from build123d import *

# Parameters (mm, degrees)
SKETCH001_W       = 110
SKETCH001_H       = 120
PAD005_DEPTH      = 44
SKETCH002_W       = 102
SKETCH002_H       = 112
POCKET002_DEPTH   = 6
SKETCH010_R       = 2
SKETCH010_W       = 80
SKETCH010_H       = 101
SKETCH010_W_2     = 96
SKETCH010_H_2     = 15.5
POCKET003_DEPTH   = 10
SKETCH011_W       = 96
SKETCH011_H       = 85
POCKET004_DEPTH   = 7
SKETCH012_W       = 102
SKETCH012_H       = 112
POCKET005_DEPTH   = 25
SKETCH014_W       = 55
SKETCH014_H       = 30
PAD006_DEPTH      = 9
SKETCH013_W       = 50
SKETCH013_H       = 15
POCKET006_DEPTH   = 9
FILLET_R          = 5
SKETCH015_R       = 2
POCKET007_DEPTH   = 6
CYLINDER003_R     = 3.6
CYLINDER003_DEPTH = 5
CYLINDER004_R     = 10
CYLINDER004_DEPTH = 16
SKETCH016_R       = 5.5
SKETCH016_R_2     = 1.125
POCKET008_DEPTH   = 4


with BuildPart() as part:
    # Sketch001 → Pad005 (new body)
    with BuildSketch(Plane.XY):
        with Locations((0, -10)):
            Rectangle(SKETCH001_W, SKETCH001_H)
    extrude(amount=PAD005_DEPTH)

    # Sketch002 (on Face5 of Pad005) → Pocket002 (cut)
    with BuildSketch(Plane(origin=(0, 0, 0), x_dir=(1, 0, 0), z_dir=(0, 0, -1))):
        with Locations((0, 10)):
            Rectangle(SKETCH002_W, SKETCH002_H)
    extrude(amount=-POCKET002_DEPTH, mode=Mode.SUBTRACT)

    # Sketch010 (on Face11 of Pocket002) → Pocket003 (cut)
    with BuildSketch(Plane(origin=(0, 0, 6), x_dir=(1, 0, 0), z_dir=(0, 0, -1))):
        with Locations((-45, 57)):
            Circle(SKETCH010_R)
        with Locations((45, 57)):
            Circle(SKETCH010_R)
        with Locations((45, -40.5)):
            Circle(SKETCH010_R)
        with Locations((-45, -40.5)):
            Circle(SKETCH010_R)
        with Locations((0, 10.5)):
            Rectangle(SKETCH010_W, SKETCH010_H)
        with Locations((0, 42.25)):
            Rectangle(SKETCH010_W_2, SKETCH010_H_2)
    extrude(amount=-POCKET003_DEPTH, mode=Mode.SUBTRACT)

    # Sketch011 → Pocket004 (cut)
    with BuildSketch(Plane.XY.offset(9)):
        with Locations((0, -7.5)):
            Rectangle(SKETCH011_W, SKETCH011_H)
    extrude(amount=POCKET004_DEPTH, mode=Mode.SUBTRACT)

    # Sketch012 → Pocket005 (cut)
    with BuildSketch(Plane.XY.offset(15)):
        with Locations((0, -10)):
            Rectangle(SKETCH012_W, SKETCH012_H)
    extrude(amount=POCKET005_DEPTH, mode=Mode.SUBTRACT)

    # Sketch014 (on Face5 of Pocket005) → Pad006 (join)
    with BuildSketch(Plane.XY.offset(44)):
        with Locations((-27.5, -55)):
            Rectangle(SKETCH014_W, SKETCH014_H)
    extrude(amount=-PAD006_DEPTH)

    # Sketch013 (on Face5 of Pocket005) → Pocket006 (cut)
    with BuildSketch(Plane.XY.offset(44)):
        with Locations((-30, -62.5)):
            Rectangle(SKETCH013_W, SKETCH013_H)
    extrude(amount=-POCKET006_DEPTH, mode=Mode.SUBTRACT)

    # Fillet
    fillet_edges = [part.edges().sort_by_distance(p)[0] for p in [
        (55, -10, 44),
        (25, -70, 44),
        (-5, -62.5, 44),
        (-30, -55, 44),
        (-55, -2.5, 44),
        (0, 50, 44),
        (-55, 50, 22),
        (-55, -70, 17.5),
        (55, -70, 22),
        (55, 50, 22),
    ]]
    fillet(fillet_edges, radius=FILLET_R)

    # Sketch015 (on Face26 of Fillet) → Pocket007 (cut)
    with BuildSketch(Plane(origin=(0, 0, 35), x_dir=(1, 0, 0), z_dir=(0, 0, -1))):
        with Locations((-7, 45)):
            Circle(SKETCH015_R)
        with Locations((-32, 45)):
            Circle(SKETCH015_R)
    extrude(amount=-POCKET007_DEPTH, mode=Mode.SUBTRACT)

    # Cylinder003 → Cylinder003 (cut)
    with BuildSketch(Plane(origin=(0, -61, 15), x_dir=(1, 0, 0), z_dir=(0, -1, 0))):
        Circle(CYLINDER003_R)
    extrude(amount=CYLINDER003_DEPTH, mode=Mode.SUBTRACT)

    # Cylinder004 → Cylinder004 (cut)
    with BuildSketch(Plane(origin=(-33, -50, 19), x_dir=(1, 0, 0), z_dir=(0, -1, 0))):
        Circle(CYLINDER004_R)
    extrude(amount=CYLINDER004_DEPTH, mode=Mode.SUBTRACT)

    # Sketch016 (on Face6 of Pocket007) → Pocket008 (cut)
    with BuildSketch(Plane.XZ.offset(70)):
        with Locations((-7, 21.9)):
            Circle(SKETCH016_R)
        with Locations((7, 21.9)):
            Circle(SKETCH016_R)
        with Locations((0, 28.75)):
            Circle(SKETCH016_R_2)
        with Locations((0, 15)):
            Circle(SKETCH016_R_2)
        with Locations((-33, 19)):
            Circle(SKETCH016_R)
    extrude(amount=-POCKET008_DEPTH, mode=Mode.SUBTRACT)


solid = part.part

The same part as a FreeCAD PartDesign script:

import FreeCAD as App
import Part
import Sketcher

V = App.Vector


def edges_at(feature, points):
    """Names of the edges that pass closest to the given points."""
    edges = feature.Shape.Edges
    near = lambda p: min(range(len(edges)), key=lambda i: edges[i].distToShape(Part.Vertex(*p))[0])
    return sorted({f"Edge{near(p) + 1}" for p in points})


def add_polygon(sketch, points):
    """Adds a closed chain of lines whose ends are joined by coincident constraints."""
    first, n = sketch.GeometryCount, len(points)
    for a, b in zip(points, points[1:] + points[:1]):
        sketch.addGeometry(Part.LineSegment(App.Vector(*a, 0), App.Vector(*b, 0)), False)
    for i in range(n):
        sketch.addConstraint(Sketcher.Constraint("Coincident", first + i, 2, first + (i + 1) % n, 1))

doc = App.newDocument("Part")
body = doc.addObject("PartDesign::Body", "Body")

sketch1 = doc.addObject("Sketcher::SketchObject", "Sketch")
body.addObject(sketch1)
sketch1.AttachmentSupport = (doc.XY_Plane, [""])
sketch1.MapMode = "FlatFace"
add_polygon(sketch1, [(-55, 50), (-55, -70), (55, -70), (55, 50)])
sketch1.addConstraint([
    Sketcher.Constraint("Vertical", 0),
    Sketcher.Constraint("Horizontal", 1),
    Sketcher.Constraint("Vertical", 2),
    Sketcher.Constraint("Horizontal", 3),
    Sketcher.Constraint("DistanceX", 1, 1, 1, 2, 110.0),
    Sketcher.Constraint("DistanceY", 0, 2, 0, 1, 120.0),
    Sketcher.Constraint("DistanceX", 0, 2, -1, 1, 55.0),
    Sketcher.Constraint("DistanceY", 0, 2, -1, 1, 70.0),
])
pad1 = doc.addObject("PartDesign::Pad", "Pad")
body.addObject(pad1)
pad1.Profile = sketch1
pad1.Length = 44

sketch2 = doc.addObject("Sketcher::SketchObject", "Sketch001")
body.addObject(sketch2)
sketch2.AttachmentSupport = (doc.XY_Plane, [""])
sketch2.MapMode = "FlatFace"
add_polygon(sketch2, [(-51, -66), (-51, 46), (51, 46), (51, -66)])
sketch2.addConstraint([
    Sketcher.Constraint("Vertical", 0),
    Sketcher.Constraint("Horizontal", 1),
    Sketcher.Constraint("Vertical", 2),
    Sketcher.Constraint("Horizontal", 3),
    Sketcher.Constraint("DistanceX", 1, 1, 1, 2, 102.0),
    Sketcher.Constraint("DistanceY", 0, 1, 0, 2, 112.0),
    Sketcher.Constraint("DistanceX", 0, 2, -1, 1, 51.0),
    Sketcher.Constraint("DistanceY", -1, 1, 0, 2, 46.0),
])
pocket1 = doc.addObject("PartDesign::Pocket", "Pocket")
body.addObject(pocket1)
pocket1.Profile = sketch2
pocket1.Length = 6
pocket1.Reversed = True

sketch3 = doc.addObject("Sketcher::SketchObject", "Sketch002")
body.addObject(sketch3)
sketch3.AttachmentSupport = (doc.XY_Plane, [""])
sketch3.MapMode = "FlatFace"
sketch3.AttachmentOffset = App.Placement(V(0, 0, 6), App.Rotation())
sketch3.addGeometry(Part.Circle(V(-45, -57, 0), V(0, 0, 1), 2), False)
sketch3.addGeometry(Part.Circle(V(45, -57, 0), V(0, 0, 1), 2), False)
sketch3.addGeometry(Part.Circle(V(45, 40.5, 0), V(0, 0, 1), 2), False)
sketch3.addGeometry(Part.Circle(V(-45, 40.5, 0), V(0, 0, 1), 2), False)
add_polygon(sketch3, [(-40, -34.5), (-40, 40), (40, 40), (40, -34.5), (48, -34.5), (48, -50), (40, -50), (40, -61), (-40, -61), (-40, -50), (-48, -50), (-48, -34.5)])
sketch3.addConstraint([
    Sketcher.Constraint("Vertical", 4),
    Sketcher.Constraint("Horizontal", 5),
    Sketcher.Constraint("Vertical", 6),
    Sketcher.Constraint("Horizontal", 7),
    Sketcher.Constraint("Vertical", 8),
    Sketcher.Constraint("Horizontal", 9),
    Sketcher.Constraint("Vertical", 10),
    Sketcher.Constraint("Horizontal", 11),
    Sketcher.Constraint("Vertical", 12),
    Sketcher.Constraint("Horizontal", 13),
    Sketcher.Constraint("Vertical", 14),
    Sketcher.Constraint("Horizontal", 15),
    Sketcher.Constraint("Equal", 0, 1),
    Sketcher.Constraint("Equal", 1, 2),
    Sketcher.Constraint("Equal", 2, 3),
    Sketcher.Constraint("Symmetric", 0, 3, 1, 3, -2),
    Sketcher.Constraint("Symmetric", 2, 3, 3, 3, -2),
    Sketcher.Constraint("Symmetric", 9, 2, 12, 2, -2),
    Sketcher.Constraint("Symmetric", 7, 2, 14, 2, -2),
    Sketcher.Constraint("Vertical", 1, 3, 2, 3),
    Sketcher.Constraint("Vertical", 6, 2, 9, 2),
    Sketcher.Constraint("Vertical", 4, 2, 11, 2),
    Sketcher.Constraint("Diameter", 0, 4.0),
    Sketcher.Constraint("DistanceX", 5, 1, 5, 2, 80.0),
    Sketcher.Constraint("DistanceX", 7, 1, 7, 2, 8.0),
    Sketcher.Constraint("DistanceY", 10, 2, 10, 1, 11.0),
    Sketcher.Constraint("DistanceY", 4, 1, 4, 2, 74.5),
    Sketcher.Constraint("DistanceY", 8, 2, 8, 1, 15.5),
    Sketcher.Constraint("DistanceX", 0, 3, -1, 1, 45.0),
    Sketcher.Constraint("DistanceY", 0, 3, -1, 1, 57.0),
    Sketcher.Constraint("DistanceY", -1, 1, 4, 2, 40.0),
    Sketcher.Constraint("DistanceY", 6, 2, 2, 3, 75.0),
])
pocket2 = doc.addObject("PartDesign::Pocket", "Pocket001")
body.addObject(pocket2)
pocket2.Profile = sketch3
pocket2.Length = 10
pocket2.Reversed = True

sketch4 = doc.addObject("Sketcher::SketchObject", "Sketch003")
body.addObject(sketch4)
sketch4.AttachmentSupport = (doc.XY_Plane, [""])
sketch4.MapMode = "FlatFace"
sketch4.AttachmentOffset = App.Placement(V(0, 0, 9), App.Rotation())
add_polygon(sketch4, [(-48, 35), (-48, -50), (48, -50), (48, 35)])
sketch4.addConstraint([
    Sketcher.Constraint("Vertical", 0),
    Sketcher.Constraint("Horizontal", 1),
    Sketcher.Constraint("Vertical", 2),
    Sketcher.Constraint("Horizontal", 3),
    Sketcher.Constraint("DistanceX", 1, 1, 1, 2, 96.0),
    Sketcher.Constraint("DistanceY", 0, 2, 0, 1, 85.0),
    Sketcher.Constraint("DistanceX", 0, 2, -1, 1, 48.0),
    Sketcher.Constraint("DistanceY", 0, 2, -1, 1, 50.0),
])
pocket3 = doc.addObject("PartDesign::Pocket", "Pocket002")
body.addObject(pocket3)
pocket3.Profile = sketch4
pocket3.Length = 7
pocket3.Reversed = True

sketch5 = doc.addObject("Sketcher::SketchObject", "Sketch004")
body.addObject(sketch5)
sketch5.AttachmentSupport = (doc.XY_Plane, [""])
sketch5.MapMode = "FlatFace"
sketch5.AttachmentOffset = App.Placement(V(0, 0, 15), App.Rotation())
add_polygon(sketch5, [(-51, 46), (-51, -66), (51, -66), (51, 46)])
sketch5.addConstraint([
    Sketcher.Constraint("Vertical", 0),
    Sketcher.Constraint("Horizontal", 1),
    Sketcher.Constraint("Vertical", 2),
    Sketcher.Constraint("Horizontal", 3),
    Sketcher.Constraint("DistanceX", 1, 1, 1, 2, 102.0),
    Sketcher.Constraint("DistanceY", 0, 2, 0, 1, 112.0),
    Sketcher.Constraint("DistanceX", 0, 2, -1, 1, 51.0),
    Sketcher.Constraint("DistanceY", 0, 2, -1, 1, 66.0),
])
pocket4 = doc.addObject("PartDesign::Pocket", "Pocket003")
body.addObject(pocket4)
pocket4.Profile = sketch5
pocket4.Length = 25
pocket4.Reversed = True

sketch6 = doc.addObject("Sketcher::SketchObject", "Sketch005")
body.addObject(sketch6)
sketch6.AttachmentSupport = (doc.XY_Plane, [""])
sketch6.MapMode = "FlatFace"
sketch6.AttachmentOffset = App.Placement(V(0, 0, 44), App.Rotation())
add_polygon(sketch6, [(-55, -40), (-55, -70), (0, -70), (0, -40)])
sketch6.addConstraint([
    Sketcher.Constraint("Vertical", 0),
    Sketcher.Constraint("Horizontal", 1),
    Sketcher.Constraint("Vertical", 2),
    Sketcher.Constraint("Horizontal", 3),
    Sketcher.Constraint("PointOnObject", 1, 2, -2),
    Sketcher.Constraint("DistanceX", 1, 1, 1, 2, 55.0),
    Sketcher.Constraint("DistanceY", 0, 2, 0, 1, 30.0),
    Sketcher.Constraint("DistanceY", 0, 2, -1, 1, 70.0),
])
pad2 = doc.addObject("PartDesign::Pad", "Pad001")
body.addObject(pad2)
pad2.Profile = sketch6
pad2.Length = 9
pad2.Reversed = True

sketch7 = doc.addObject("Sketcher::SketchObject", "Sketch006")
body.addObject(sketch7)
sketch7.AttachmentSupport = (doc.XY_Plane, [""])
sketch7.MapMode = "FlatFace"
sketch7.AttachmentOffset = App.Placement(V(0, 0, 44), App.Rotation())
add_polygon(sketch7, [(-55, -55), (-55, -70), (-5, -70), (-5, -55)])
sketch7.addConstraint([
    Sketcher.Constraint("Vertical", 0),
    Sketcher.Constraint("Horizontal", 1),
    Sketcher.Constraint("Vertical", 2),
    Sketcher.Constraint("Horizontal", 3),
    Sketcher.Constraint("DistanceX", 1, 1, 1, 2, 50.0),
    Sketcher.Constraint("DistanceY", 0, 2, 0, 1, 15.0),
    Sketcher.Constraint("DistanceX", 0, 2, -1, 1, 55.0),
    Sketcher.Constraint("DistanceY", 0, 2, -1, 1, 70.0),
])
pocket5 = doc.addObject("PartDesign::Pocket", "Pocket004")
body.addObject(pocket5)
pocket5.Profile = sketch7
pocket5.Length = 9
doc.recompute()

fillet = doc.addObject("PartDesign::Fillet", "Fillet")
body.addObject(fillet)
fillet.Base = (pocket5, edges_at(pocket5, [
    (55, -10, 44),
    (25, -70, 44),
    (-5, -62.5, 44),
    (-30, -55, 44),
    (-55, -2.5, 44),
    (0, 50, 44),
    (-55, 50, 22),
    (-55, -70, 17.5),
    (55, -70, 22),
    (55, 50, 22),
]))
fillet.Radius = 5

sketch8 = doc.addObject("Sketcher::SketchObject", "Sketch007")
body.addObject(sketch8)
sketch8.AttachmentSupport = (doc.XY_Plane, [""])
sketch8.MapMode = "FlatFace"
sketch8.AttachmentOffset = App.Placement(V(0, 0, 35), App.Rotation())
sketch8.addGeometry([
    Part.Circle(V(-7, -45, 0), V(0, 0, 1), 2),
    Part.Circle(V(-32, -45, 0), V(0, 0, 1), 2),
], False)
sketch8.addConstraint([
    Sketcher.Constraint("Equal", 0, 1),
    Sketcher.Constraint("Horizontal", 0, 3, 1, 3),
    Sketcher.Constraint("Diameter", 0, 4.0),
    Sketcher.Constraint("DistanceX", 0, 3, -1, 1, 7.0),
    Sketcher.Constraint("DistanceY", 0, 3, -1, 1, 45.0),
    Sketcher.Constraint("DistanceX", 1, 3, -1, 1, 32.0),
])
pocket6 = doc.addObject("PartDesign::Pocket", "Pocket005")
body.addObject(pocket6)
pocket6.Profile = sketch8
pocket6.Length = 6
pocket6.Reversed = True

sketch9 = doc.addObject("Sketcher::SketchObject", "Sketch008")
body.addObject(sketch9)
sketch9.AttachmentSupport = (doc.XZ_Plane, [""])
sketch9.MapMode = "FlatFace"
sketch9.AttachmentOffset = App.Placement(V(0, 0, 61), App.Rotation())
sketch9.addGeometry(Part.Circle(V(0, 15, 0), V(0, 0, 1), 3.6), False)
sketch9.addConstraint([
    Sketcher.Constraint("PointOnObject", 0, 3, -2),
    Sketcher.Constraint("Diameter", 0, 7.2),
    Sketcher.Constraint("DistanceY", -1, 1, 0, 3, 15.0),
])
pocket7 = doc.addObject("PartDesign::Pocket", "Pocket006")
body.addObject(pocket7)
pocket7.Profile = sketch9
pocket7.Length = 5
pocket7.Reversed = True

sketch10 = doc.addObject("Sketcher::SketchObject", "Sketch009")
body.addObject(sketch10)
sketch10.AttachmentSupport = (doc.XZ_Plane, [""])
sketch10.MapMode = "FlatFace"
sketch10.AttachmentOffset = App.Placement(V(0, 0, 50), App.Rotation())
sketch10.addGeometry(Part.Circle(V(-33, 19, 0), V(0, 0, 1), 10), False)
sketch10.addConstraint([
    Sketcher.Constraint("Diameter", 0, 20.0),
    Sketcher.Constraint("DistanceX", 0, 3, -1, 1, 33.0),
    Sketcher.Constraint("DistanceY", -1, 1, 0, 3, 19.0),
])
pocket8 = doc.addObject("PartDesign::Pocket", "Pocket007")
body.addObject(pocket8)
pocket8.Profile = sketch10
pocket8.Length = 16
pocket8.Reversed = True

sketch11 = doc.addObject("Sketcher::SketchObject", "Sketch010")
body.addObject(sketch11)
sketch11.AttachmentSupport = (doc.XZ_Plane, [""])
sketch11.MapMode = "FlatFace"
sketch11.AttachmentOffset = App.Placement(V(0, 0, 70), App.Rotation())
sketch11.addGeometry([
    Part.Circle(V(-7, 21.9, 0), V(0, 0, 1), 5.5),
    Part.Circle(V(7, 21.9, 0), V(0, 0, 1), 5.5),
    Part.Circle(V(0, 28.8, 0), V(0, 0, 1), 1.1),
    Part.Circle(V(0, 15, 0), V(0, 0, 1), 1.1),
    Part.Circle(V(-33, 19, 0), V(0, 0, 1), 5.5),
], False)
sketch11.addConstraint([
    Sketcher.Constraint("Equal", 0, 1),
    Sketcher.Constraint("Equal", 2, 3),
    Sketcher.Constraint("Equal", 1, 4),
    Sketcher.Constraint("Symmetric", 0, 3, 1, 3, -2),
    Sketcher.Constraint("PointOnObject", 2, 3, -2),
    Sketcher.Constraint("PointOnObject", 3, 3, -2),
    Sketcher.Constraint("Diameter", 0, 11.0),
    Sketcher.Constraint("Diameter", 2, 2.25),
    Sketcher.Constraint("DistanceX", 0, 3, -1, 1, 7.0),
    Sketcher.Constraint("DistanceY", -1, 1, 3, 3, 15.0),
    Sketcher.Constraint("DistanceX", 4, 3, -1, 1, 33.0),
    Sketcher.Constraint("DistanceY", -1, 1, 4, 3, 19.0),
    Sketcher.Constraint("DistanceY", -1, 1, 0, 3, 21.9),
    Sketcher.Constraint("DistanceY", -1, 1, 2, 3, 28.75),
])
pocket9 = doc.addObject("PartDesign::Pocket", "Pocket008")
body.addObject(pocket9)
pocket9.Profile = sketch11
pocket9.Length = 4

doc.recompute()
